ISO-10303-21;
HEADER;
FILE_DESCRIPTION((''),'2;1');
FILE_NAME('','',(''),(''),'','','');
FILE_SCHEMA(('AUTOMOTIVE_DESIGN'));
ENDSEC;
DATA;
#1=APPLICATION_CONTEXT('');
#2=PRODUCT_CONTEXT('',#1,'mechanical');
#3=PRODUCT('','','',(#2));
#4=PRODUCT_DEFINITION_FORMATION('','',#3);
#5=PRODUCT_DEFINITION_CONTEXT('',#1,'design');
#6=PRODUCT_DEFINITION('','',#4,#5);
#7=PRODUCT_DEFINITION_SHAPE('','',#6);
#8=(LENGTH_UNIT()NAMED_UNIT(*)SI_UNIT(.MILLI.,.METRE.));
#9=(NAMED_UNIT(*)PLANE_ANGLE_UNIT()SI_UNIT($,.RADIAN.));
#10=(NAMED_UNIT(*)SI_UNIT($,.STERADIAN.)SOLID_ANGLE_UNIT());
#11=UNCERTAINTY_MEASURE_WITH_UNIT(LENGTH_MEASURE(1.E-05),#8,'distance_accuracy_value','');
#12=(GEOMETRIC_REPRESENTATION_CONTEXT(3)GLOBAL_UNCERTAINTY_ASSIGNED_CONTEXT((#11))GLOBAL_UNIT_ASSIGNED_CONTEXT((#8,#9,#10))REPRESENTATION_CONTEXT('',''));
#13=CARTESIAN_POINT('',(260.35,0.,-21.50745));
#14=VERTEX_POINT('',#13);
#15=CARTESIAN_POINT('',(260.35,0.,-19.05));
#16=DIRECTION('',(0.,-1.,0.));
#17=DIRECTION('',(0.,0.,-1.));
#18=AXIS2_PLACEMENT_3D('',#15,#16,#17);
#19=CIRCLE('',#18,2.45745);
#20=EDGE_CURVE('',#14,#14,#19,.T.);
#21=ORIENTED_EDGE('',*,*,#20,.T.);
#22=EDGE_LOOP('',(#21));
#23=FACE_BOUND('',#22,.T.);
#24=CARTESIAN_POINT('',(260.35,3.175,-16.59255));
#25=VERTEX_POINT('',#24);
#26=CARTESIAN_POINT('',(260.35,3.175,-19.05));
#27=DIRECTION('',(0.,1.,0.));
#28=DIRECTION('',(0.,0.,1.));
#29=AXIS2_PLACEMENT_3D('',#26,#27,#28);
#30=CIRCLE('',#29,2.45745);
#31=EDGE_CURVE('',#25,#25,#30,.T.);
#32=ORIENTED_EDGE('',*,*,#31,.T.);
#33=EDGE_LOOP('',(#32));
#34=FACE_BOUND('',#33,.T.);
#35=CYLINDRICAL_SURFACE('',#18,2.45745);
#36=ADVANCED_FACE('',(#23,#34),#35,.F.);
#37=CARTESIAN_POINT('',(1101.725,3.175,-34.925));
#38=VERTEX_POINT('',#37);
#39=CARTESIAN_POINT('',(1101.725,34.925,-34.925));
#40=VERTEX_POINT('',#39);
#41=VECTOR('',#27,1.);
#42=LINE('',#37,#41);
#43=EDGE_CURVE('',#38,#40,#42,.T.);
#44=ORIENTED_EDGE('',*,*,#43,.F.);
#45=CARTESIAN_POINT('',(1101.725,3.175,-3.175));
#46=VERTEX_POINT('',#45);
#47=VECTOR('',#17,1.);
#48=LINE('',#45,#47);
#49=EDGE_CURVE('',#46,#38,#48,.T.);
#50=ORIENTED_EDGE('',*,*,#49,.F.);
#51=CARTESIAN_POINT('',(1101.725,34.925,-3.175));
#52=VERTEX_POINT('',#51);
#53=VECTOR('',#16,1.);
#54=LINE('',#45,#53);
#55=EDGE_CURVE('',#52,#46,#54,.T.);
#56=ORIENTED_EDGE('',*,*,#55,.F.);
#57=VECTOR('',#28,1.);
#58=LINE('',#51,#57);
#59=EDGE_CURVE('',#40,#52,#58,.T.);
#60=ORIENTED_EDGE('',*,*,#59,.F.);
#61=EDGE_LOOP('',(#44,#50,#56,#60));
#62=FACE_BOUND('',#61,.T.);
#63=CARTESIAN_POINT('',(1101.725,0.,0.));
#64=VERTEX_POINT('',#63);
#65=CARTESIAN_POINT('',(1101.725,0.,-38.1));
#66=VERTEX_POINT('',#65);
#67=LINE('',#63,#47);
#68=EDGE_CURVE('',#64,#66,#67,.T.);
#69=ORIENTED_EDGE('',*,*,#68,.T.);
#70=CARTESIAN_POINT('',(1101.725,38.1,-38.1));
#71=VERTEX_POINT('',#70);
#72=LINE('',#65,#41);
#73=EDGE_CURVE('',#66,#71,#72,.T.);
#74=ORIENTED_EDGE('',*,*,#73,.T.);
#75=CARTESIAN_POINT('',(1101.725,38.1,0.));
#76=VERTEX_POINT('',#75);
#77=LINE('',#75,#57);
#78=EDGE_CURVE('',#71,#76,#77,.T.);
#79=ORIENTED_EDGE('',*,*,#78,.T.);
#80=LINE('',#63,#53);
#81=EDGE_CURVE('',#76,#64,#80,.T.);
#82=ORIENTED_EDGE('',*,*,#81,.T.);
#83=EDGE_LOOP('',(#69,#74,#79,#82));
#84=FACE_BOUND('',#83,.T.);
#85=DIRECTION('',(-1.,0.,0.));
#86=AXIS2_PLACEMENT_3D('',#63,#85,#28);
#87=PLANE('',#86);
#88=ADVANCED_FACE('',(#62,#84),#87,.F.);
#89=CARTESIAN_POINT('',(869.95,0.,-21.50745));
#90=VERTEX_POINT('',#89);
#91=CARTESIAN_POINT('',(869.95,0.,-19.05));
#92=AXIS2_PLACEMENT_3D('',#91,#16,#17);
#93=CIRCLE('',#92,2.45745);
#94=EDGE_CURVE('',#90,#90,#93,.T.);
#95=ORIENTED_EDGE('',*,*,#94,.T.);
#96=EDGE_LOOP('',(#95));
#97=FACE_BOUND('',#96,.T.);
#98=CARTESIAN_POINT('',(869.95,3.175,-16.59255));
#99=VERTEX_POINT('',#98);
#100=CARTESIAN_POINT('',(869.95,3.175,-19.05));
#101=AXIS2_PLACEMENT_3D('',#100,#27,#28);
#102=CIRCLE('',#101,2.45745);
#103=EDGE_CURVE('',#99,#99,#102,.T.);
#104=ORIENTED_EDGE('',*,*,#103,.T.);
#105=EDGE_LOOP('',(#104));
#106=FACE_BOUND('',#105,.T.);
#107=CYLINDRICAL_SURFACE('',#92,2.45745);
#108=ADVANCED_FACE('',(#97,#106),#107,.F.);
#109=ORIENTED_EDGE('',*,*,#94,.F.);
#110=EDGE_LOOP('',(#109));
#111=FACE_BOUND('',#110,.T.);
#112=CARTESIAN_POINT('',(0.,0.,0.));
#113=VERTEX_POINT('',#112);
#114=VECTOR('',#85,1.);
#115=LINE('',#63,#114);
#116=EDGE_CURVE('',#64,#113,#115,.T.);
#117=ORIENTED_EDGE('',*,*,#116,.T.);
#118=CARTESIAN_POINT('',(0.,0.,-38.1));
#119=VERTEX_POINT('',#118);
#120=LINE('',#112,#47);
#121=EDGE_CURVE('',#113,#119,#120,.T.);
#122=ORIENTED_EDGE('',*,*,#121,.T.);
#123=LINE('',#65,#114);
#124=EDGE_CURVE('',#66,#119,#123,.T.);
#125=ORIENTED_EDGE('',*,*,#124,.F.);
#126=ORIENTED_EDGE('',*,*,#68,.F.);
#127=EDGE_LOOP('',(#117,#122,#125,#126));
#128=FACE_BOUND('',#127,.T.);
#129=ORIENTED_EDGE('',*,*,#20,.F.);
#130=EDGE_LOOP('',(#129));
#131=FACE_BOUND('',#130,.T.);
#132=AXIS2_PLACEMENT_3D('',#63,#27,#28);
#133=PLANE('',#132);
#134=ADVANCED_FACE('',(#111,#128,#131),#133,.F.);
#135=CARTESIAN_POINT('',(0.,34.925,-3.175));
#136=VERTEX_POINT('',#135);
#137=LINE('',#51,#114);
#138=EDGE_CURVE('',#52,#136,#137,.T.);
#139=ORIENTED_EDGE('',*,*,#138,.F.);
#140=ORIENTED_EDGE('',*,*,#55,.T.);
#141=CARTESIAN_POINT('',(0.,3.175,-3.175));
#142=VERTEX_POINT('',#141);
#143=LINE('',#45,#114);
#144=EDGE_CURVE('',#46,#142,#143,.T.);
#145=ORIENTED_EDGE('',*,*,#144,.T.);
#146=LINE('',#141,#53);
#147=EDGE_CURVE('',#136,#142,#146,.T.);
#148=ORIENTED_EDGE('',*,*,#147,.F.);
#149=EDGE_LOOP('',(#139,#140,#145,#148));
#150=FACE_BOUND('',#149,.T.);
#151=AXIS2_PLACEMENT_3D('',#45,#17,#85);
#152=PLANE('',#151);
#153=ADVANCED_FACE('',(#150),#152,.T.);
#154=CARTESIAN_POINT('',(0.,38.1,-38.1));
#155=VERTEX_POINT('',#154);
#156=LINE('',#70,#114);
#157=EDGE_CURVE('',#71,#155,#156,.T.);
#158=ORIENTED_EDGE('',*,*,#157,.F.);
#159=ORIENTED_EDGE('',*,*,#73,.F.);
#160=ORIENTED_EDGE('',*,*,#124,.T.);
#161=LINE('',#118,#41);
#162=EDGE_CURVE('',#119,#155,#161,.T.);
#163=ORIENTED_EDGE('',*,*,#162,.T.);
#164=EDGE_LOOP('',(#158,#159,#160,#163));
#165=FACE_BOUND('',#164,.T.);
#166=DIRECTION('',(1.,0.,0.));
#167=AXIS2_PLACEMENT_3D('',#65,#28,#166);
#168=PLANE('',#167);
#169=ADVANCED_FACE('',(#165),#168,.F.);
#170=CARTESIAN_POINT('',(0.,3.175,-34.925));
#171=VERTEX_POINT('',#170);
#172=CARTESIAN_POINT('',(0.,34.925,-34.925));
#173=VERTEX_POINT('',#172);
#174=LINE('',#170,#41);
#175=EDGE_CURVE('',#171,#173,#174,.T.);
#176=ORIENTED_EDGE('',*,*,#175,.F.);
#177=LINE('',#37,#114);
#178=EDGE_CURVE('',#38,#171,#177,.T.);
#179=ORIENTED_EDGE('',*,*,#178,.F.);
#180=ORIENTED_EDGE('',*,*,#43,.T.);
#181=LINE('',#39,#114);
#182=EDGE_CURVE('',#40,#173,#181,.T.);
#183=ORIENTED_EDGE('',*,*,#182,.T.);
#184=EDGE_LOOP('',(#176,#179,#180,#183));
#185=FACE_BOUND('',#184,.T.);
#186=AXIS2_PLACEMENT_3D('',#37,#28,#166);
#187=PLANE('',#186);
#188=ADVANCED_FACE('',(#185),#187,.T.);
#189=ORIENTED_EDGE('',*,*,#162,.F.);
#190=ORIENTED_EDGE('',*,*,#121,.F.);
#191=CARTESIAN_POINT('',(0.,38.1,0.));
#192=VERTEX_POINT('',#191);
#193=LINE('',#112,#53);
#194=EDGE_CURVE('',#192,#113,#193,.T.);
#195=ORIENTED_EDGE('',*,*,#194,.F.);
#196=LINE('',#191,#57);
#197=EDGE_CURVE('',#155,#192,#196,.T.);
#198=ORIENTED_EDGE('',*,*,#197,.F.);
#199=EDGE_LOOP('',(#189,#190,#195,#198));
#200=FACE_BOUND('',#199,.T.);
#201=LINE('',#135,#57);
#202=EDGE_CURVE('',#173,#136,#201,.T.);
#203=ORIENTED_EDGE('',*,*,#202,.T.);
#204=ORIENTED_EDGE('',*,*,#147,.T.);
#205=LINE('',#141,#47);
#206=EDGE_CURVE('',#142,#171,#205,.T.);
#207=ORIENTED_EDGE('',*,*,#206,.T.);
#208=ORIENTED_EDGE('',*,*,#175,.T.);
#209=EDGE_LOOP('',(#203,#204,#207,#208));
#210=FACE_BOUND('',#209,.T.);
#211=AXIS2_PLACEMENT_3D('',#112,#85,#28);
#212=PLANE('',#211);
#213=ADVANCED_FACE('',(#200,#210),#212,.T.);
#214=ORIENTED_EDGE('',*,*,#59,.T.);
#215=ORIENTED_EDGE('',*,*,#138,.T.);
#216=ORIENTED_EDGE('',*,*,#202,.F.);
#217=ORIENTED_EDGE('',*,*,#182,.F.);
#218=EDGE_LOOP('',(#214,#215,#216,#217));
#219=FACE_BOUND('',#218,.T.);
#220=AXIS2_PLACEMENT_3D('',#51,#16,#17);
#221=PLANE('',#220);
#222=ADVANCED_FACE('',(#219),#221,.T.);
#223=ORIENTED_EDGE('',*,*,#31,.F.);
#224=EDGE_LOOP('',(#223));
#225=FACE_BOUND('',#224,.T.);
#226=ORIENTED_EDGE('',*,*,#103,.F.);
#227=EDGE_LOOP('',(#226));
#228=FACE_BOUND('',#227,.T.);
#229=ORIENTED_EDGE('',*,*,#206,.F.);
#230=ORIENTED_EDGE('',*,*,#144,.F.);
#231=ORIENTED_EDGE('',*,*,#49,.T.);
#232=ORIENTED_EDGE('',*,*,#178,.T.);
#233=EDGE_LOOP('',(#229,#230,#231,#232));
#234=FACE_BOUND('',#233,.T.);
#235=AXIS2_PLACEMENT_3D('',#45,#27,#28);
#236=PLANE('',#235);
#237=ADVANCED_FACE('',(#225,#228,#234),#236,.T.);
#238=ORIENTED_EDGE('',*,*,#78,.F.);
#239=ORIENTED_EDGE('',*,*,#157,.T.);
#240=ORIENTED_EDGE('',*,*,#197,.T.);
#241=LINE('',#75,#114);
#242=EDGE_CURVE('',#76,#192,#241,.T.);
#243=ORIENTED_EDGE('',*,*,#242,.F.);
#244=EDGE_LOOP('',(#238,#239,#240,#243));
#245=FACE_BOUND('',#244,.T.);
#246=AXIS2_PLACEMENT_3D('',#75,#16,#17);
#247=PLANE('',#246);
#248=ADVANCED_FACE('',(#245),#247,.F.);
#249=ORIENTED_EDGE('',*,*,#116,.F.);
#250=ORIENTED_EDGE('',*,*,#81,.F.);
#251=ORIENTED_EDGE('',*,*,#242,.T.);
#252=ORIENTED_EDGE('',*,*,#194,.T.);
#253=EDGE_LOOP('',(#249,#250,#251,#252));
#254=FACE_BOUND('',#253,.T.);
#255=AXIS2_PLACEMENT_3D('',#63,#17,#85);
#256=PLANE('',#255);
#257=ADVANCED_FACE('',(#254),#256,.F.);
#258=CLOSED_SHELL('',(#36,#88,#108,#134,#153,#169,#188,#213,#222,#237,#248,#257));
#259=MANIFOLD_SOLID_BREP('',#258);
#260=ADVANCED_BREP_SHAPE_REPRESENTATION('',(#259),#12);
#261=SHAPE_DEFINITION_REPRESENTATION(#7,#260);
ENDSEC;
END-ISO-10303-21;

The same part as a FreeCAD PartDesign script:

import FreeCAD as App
import Part
import Sketcher
from FreeCAD import Vector
Q = App.Units.Quantity


def add_polygon(sketch, points):
    """Adds a closed chain of lines whose ends are joined by coincident constraints."""
    first, n = sketch.GeometryCount, len(points)
    for a, b in zip(points, points[1:] + points[:1]):
        sketch.addGeometry(Part.LineSegment(App.Vector(*a, 0), App.Vector(*b, 0)), False)
    for i in range(n):
        sketch.addConstraint(Sketcher.Constraint("Coincident", first + i, 2, first + (i + 1) % n, 1))

doc = App.newDocument("Part")
body = doc.addObject("PartDesign::Body", "Body")

# Sketch on YZ plane
sketch1 = body.newObject("Sketcher::SketchObject", "Sketch")
sketch1.AttachmentSupport = (doc.getObject("YZ_Plane"), [""])
sketch1.MapMode = "FlatFace"
add_polygon(sketch1, [(38, 0), (0, 0), (0, -38), (38, -38)])  # lines 0-3
add_polygon(sketch1, [(3, -35), (3, -3), (35, -3), (35, -35)])  # lines 4-7
sketch1.addConstraint(Sketcher.Constraint("Horizontal", 0))
sketch1.addConstraint(Sketcher.Constraint("Vertical", 1))
sketch1.addConstraint(Sketcher.Constraint("Horizontal", 2))
sketch1.addConstraint(Sketcher.Constraint("Vertical", 3))
sketch1.addConstraint(Sketcher.Constraint("Vertical", 4))
sketch1.addConstraint(Sketcher.Constraint("Horizontal", 5))
sketch1.addConstraint(Sketcher.Constraint("Vertical", 6))
sketch1.addConstraint(Sketcher.Constraint("Horizontal", 7))
sketch1.addConstraint(Sketcher.Constraint("Coincident", 0, 2, -1, 1))
sketch1.addConstraint(Sketcher.Constraint("Equal", 2, 1))
sketch1.addConstraint(Sketcher.Constraint("Equal", 7, 4))
sketch1.addConstraint(Sketcher.Constraint("DistanceX", 0, 2, 0, 1, Q("1.5 in")))
sketch1.addConstraint(Sketcher.Constraint("DistanceX", 5, 1, 5, 2, Q("1.25 in")))
sketch1.addConstraint(Sketcher.Constraint("DistanceX", -1, 1, 4, 2, Q("0.125 in")))
sketch1.addConstraint(Sketcher.Constraint("DistanceY", 4, 2, -1, 1, Q("0.125 in")))
pad1 = body.newObject("PartDesign::Pad", "Pad")
pad1.Profile = sketch1
pad1.Length = Q("43.375 in")

# Sketch on XZ plane
sketch2 = body.newObject("Sketcher::SketchObject", "Sketch001")
sketch2.AttachmentSupport = (doc.getObject("XZ_Plane"), [""])
sketch2.MapMode = "FlatFace"
sketch2.addGeometry(Part.Circle(Vector(260.4, -19.1, 0), Vector(0, 0, 1), 2.5), False)
sketch2.addGeometry(Part.Circle(Vector(870, -19.1, 0), Vector(0, 0, 1), 2.5), False)
sketch2.addConstraint(Sketcher.Constraint("Equal", 0, 1))
sketch2.addConstraint(Sketcher.Constraint("Horizontal", 0, 3, 1, 3))
sketch2.addConstraint(Sketcher.Constraint("DistanceX", 0, 3, 1, 3, Q("24 in")))
sketch2.addConstraint(Sketcher.Constraint("Diameter", 0, Q("0.1935 in")))
sketch2.addConstraint(Sketcher.Constraint("DistanceX", -1, 1, 0, 3, Q("10.25 in")))
sketch2.addConstraint(Sketcher.Constraint("DistanceY", 0, 3, -1, 1, Q("0.75 in")))
doc.recompute()
hole = body.newObject("PartDesign::Hole", "Hole")
hole.Profile = sketch2
hole.ThreadType = "None"
hole.Diameter = Q("0.1935 in")
hole.DepthType = "Dimension"
hole.Depth = Q("0.125 in")
hole.DrillPoint = "Flat"

doc.recompute()
